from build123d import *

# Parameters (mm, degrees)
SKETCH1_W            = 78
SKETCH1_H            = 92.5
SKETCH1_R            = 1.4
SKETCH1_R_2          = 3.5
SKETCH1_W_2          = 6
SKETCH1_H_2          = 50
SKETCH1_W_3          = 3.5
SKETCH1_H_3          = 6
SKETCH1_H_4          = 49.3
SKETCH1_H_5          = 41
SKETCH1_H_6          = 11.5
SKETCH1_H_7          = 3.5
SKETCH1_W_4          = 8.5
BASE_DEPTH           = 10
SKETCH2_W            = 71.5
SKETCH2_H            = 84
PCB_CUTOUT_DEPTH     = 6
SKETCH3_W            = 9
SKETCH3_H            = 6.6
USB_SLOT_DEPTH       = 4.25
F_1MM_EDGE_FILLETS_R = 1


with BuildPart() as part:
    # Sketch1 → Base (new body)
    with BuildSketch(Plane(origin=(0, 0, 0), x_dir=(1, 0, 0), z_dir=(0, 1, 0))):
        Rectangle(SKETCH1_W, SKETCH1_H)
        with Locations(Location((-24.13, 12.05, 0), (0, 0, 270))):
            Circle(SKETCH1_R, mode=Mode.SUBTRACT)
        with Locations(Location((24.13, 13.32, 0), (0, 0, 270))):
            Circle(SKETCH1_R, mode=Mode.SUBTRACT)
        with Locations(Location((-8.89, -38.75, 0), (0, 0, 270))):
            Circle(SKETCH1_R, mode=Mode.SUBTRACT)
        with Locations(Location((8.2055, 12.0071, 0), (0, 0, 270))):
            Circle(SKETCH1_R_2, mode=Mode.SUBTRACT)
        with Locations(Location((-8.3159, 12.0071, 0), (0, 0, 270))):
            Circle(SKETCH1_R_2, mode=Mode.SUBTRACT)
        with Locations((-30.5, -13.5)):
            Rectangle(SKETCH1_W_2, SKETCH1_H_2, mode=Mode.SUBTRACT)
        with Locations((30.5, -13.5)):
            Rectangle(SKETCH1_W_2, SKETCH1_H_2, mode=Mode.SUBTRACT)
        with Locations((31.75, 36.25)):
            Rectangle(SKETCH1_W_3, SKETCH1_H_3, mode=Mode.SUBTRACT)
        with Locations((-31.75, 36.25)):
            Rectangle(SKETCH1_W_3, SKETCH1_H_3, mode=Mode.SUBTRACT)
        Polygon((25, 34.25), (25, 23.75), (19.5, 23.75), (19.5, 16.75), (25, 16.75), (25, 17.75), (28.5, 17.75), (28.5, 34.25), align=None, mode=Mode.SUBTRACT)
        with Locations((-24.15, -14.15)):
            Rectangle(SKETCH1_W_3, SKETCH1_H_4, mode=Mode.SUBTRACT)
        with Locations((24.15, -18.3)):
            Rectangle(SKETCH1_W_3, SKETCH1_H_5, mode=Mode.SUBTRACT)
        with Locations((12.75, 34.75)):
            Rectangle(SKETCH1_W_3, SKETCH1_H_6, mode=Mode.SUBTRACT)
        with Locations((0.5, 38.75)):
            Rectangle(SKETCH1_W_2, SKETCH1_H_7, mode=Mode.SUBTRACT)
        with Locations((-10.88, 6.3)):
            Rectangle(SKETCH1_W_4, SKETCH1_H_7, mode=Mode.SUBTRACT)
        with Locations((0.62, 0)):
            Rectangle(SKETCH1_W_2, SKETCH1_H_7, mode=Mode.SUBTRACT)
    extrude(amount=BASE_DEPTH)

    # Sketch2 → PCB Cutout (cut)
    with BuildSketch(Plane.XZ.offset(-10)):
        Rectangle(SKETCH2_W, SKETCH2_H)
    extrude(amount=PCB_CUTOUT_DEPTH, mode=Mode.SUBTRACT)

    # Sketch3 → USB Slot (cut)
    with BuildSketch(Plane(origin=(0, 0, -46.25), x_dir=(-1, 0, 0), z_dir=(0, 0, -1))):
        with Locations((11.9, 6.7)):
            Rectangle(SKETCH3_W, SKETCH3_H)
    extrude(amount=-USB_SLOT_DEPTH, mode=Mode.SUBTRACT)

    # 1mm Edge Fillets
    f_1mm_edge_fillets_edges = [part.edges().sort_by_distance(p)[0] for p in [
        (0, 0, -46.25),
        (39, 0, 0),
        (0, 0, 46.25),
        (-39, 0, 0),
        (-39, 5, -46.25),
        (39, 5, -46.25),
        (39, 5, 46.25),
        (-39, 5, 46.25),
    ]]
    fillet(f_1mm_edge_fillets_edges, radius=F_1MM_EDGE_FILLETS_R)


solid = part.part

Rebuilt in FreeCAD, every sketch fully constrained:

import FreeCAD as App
import Part
import Sketcher
Q = App.Units.Quantity


def edges_at(feature, points):
    """Names of the edges that pass closest to the given points."""
    edges = feature.Shape.Edges
    near = lambda p: min(range(len(edges)), key=lambda i: edges[i].distToShape(Part.Vertex(*p))[0])
    return sorted({f"Edge{near(p) + 1}" for p in points})


def add_polygon(sketch, points):
    """Adds a closed chain of lines whose ends are joined by coincident constraints."""
    first, n = sketch.GeometryCount, len(points)
    for a, b in zip(points, points[1:] + points[:1]):
        sketch.addGeometry(Part.LineSegment(App.Vector(*a, 0), App.Vector(*b, 0)), False)
    for i in range(n):
        sketch.addConstraint(Sketcher.Constraint("Coincident", first + i, 2, first + (i + 1) % n, 1))

doc = App.newDocument("Part")
params = doc.addObject("Spreadsheet::Sheet", "Params")
for row, (alias, value) in enumerate([
    ("sketch1_diameter", "7 mm"),
    ("sketch1_diameter2", "2.8 mm"),
    ("sketch1_width", "78 mm"),
    ("sketch1_width2", "6 mm"),
    ("sketch1_height", "50 mm"),
    ("pad1_length", "10 mm"),
    ("sketch2_height", "84 mm"),
    ("sketch2_width", "71.5 mm"),
    ("pocket1_length", "6 mm"),
    ("sketch3_width", "9 mm"),
    ("sketch3_height", "6.6 mm"),
    ("pocket2_length", "4.25 mm"),
    ("fillet_radius", "1 mm"),
], start=1):
    params.set(f"A{row}", alias)
    params.set(f"B{row}", "=" + value)
    params.setAlias(f"B{row}", alias)

body = doc.addObject("PartDesign::Body", "Body")

# Sketch on XZ plane
sketch1 = doc.addObject("Sketcher::SketchObject", "Sketch")
body.addObject(sketch1)
sketch1.AttachmentSupport = (doc.XZ_Plane, [""])
sketch1.MapMode = "FlatFace"
add_polygon(sketch1, [(-39, -46.2), (-39, 46.2), (39, 46.2), (39, -46.2)])  # lines 0-3
sketch1.addGeometry(Part.Circle(App.Vector(-8.9, 38.8, 0), App.Vector(0, 0, 1), 1.4), False)  # 4
add_polygon(sketch1, [(-27.5, 38.5), (-33.5, 38.5), (-33.5, -11.5), (-27.5, -11.5)])  # lines 5-8
add_polygon(sketch1, [(-22.4, 38.8), (-25.9, 38.8), (-25.9, -10.5), (-22.4, -10.5)])  # lines 9-12
add_polygon(sketch1, [(3.6, 1.8), (-2.4, 1.8), (-2.4, -1.8), (3.6, -1.8)])  # lines 13-16
add_polygon(sketch1, [(25.9, 38.8), (22.4, 38.8), (22.4, -2.2), (25.9, -2.2)])  # lines 17-20
add_polygon(sketch1, [(33.5, 38.5), (27.5, 38.5), (27.5, -11.5), (33.5, -11.5)])  # lines 21-24
sketch1.addGeometry(Part.Circle(App.Vector(-24.1, -12.1, 0), App.Vector(0, 0, 1), 1.4), False)  # 25
add_polygon(sketch1, [(-6.6, -4.5), (-15.1, -4.5), (-15.1, -8.1), (-6.6, -8.1)])  # lines 26-29
sketch1.addGeometry(Part.Circle(App.Vector(-8.3, -12, 0), App.Vector(0, 0, 1), 3.5), False)  # 30
add_polygon(sketch1, [(-30, -33.2), (-33.5, -33.2), (-33.5, -39.2), (-30, -39.2)])  # lines 31-34
sketch1.addGeometry(Part.Circle(App.Vector(8.2, -12, 0), App.Vector(0, 0, 1), 3.5), False)  # 35
sketch1.addGeometry(Part.Circle(App.Vector(24.1, -13.3, 0), App.Vector(0, 0, 1), 1.4), False)  # 36
add_polygon(sketch1, [(3.5, -37), (-2.5, -37), (-2.5, -40.5), (3.5, -40.5)])  # lines 37-40
add_polygon(sketch1, [(14.5, -29), (11, -29), (11, -40.5), (14.5, -40.5)])  # lines 41-44
add_polygon(sketch1, [(25, -23.8), (25, -34.2), (28.5, -34.2), (28.5, -17.8), (25, -17.8), (25, -16.8), (19.5, -16.8), (19.5, -23.8)])  # lines 45-52
add_polygon(sketch1, [(33.5, -33.2), (30, -33.2), (30, -39.2), (33.5, -39.2)])  # lines 53-56
sketch1.addConstraint(Sketcher.Constraint("Vertical", 0))
sketch1.addConstraint(Sketcher.Constraint("Horizontal", 1))
sketch1.addConstraint(Sketcher.Constraint("Vertical", 2))
sketch1.addConstraint(Sketcher.Constraint("Horizontal", 3))
sketch1.addConstraint(Sketcher.Constraint("Horizontal", 5))
sketch1.addConstraint(Sketcher.Constraint("Vertical", 6))
sketch1.addConstraint(Sketcher.Constraint("Horizontal", 7))
sketch1.addConstraint(Sketcher.Constraint("Vertical", 8))
sketch1.addConstraint(Sketcher.Constraint("Horizontal", 9))
sketch1.addConstraint(Sketcher.Constraint("Vertical", 10))
sketch1.addConstraint(Sketcher.Constraint("Horizontal", 11))
sketch1.addConstraint(Sketcher.Constraint("Vertical", 12))
sketch1.addConstraint(Sketcher.Constraint("Horizontal", 13))
sketch1.addConstraint(Sketcher.Constraint("Vertical", 14))
sketch1.addConstraint(Sketcher.Constraint("Horizontal", 15))
sketch1.addConstraint(Sketcher.Constraint("Vertical", 16))
sketch1.addConstraint(Sketcher.Constraint("Horizontal", 17))
sketch1.addConstraint(Sketcher.Constraint("Vertical", 18))
sketch1.addConstraint(Sketcher.Constraint("Horizontal", 19))
sketch1.addConstraint(Sketcher.Constraint("Vertical", 20))
sketch1.addConstraint(Sketcher.Constraint("Horizontal", 21))
sketch1.addConstraint(Sketcher.Constraint("Vertical", 22))
sketch1.addConstraint(Sketcher.Constraint("Horizontal", 23))
sketch1.addConstraint(Sketcher.Constraint("Vertical", 24))
sketch1.addConstraint(Sketcher.Constraint("Horizontal", 26))
sketch1.addConstraint(Sketcher.Constraint("Vertical", 27))
sketch1.addConstraint(Sketcher.Constraint("Horizontal", 28))
sketch1.addConstraint(Sketcher.Constraint("Vertical", 29))
sketch1.addConstraint(Sketcher.Constraint("Horizontal", 31))
sketch1.addConstraint(Sketcher.Constraint("Vertical", 32))
sketch1.addConstraint(Sketcher.Constraint("Horizontal", 33))
sketch1.addConstraint(Sketcher.Constraint("Vertical", 34))
sketch1.addConstraint(Sketcher.Constraint("Horizontal", 37))
sketch1.addConstraint(Sketcher.Constraint("Vertical", 38))
sketch1.addConstraint(Sketcher.Constraint("Horizontal", 39))
sketch1.addConstraint(Sketcher.Constraint("Vertical", 40))
sketch1.addConstraint(Sketcher.Constraint("Horizontal", 41))
sketch1.addConstraint(Sketcher.Constraint("Vertical", 42))
sketch1.addConstraint(Sketcher.Constraint("Horizontal", 43))
sketch1.addConstraint(Sketcher.Constraint("Vertical", 44))
sketch1.addConstraint(Sketcher.Constraint("Vertical", 45))
sketch1.addConstraint(Sketcher.Constraint("Horizontal", 46))
sketch1.addConstraint(Sketcher.Constraint("Vertical", 47))
sketch1.addConstraint(Sketcher.Constraint("Horizontal", 48))
sketch1.addConstraint(Sketcher.Constraint("Vertical", 49))
sketch1.addConstraint(Sketcher.Constraint("Horizontal", 50))
sketch1.addConstraint(Sketcher.Constraint("Vertical", 51))
sketch1.addConstraint(Sketcher.Constraint("Horizontal", 52))
sketch1.addConstraint(Sketcher.Constraint("Horizontal", 53))
sketch1.addConstraint(Sketcher.Constraint("Vertical", 54))
sketch1.addConstraint(Sketcher.Constraint("Horizontal", 55))
sketch1.addConstraint(Sketcher.Constraint("Vertical", 56))
sketch1.addConstraint(Sketcher.Constraint("Equal", 4, 25))
sketch1.addConstraint(Sketcher.Constraint("Equal", 30, 35))
sketch1.addConstraint(Sketcher.Constraint("Equal", 25, 36))
sketch1.addConstraint(Sketcher.Constraint("Symmetric", 0, 2, 2, 2, -1, 1))
sketch1.addConstraint(Sketcher.Constraint("Symmetric", 12, 2, 17, 2, -2))
sketch1.addConstraint(Sketcher.Constraint("Symmetric", 8, 2, 21, 2, -2))
sketch1.addConstraint(Sketcher.Constraint("Symmetric", 6, 2, 23, 2, -2))
sketch1.addConstraint(Sketcher.Constraint("Symmetric", 34, 2, 53, 2, -2))
sketch1.addConstraint(Sketcher.Constraint("Symmetric", 32, 2, 55, 2, -2))
sketch1.addConstraint(Sketcher.Constraint("Horizontal", 30, 3, 35, 3))
sketch1.addConstraint(Sketcher.Constraint("Horizontal", 39, 2, 42, 2))
sketch1.addConstraint(Sketcher.Constraint("Vertical", 6, 2, 31, 2))
sketch1.addConstraint(Sketcher.Constraint("Vertical", 45, 2, 48, 2))
sketch1.addConstraint(Sketcher.Constraint("Equal", 7, 13))
sketch1.addConstraint(Sketcher.Constraint("Equal", 11, 17))
sketch1.addConstraint(Sketcher.Constraint("Equal", 19, 31))
sketch1.addConstraint(Sketcher.Constraint("Equal", 23, 37))
sketch1.addConstraint(Sketcher.Constraint("Equal", 33, 41))
sketch1.addConstraint(Sketcher.Constraint("Equal", 43, 46))
sketch1.addConstraint(Sketcher.Constraint("Equal", 55, 14))
sketch1.addConstraint(Sketcher.Constraint("Equal", 16, 27))
sketch1.addConstraint(Sketcher.Constraint("Equal", 39, 32))
sketch1.addConstraint(Sketcher.Constraint("Equal", 29, 38))
sketch1.addConstraint(Sketcher.Constraint("Diameter", 30, Q("7 mm")))
sketch1.addConstraint(Sketcher.Constraint("Diameter", 4, Q("2.8 mm")))
sketch1.addConstraint(Sketcher.Constraint("DistanceX", 1, 1, 1, 2, Q("78 mm")))
sketch1.addConstraint(Sketcher.Constraint("DistanceX", 5, 2, 5, 1, Q("6 mm")))
sketch1.addConstraint(Sketcher.Constraint("DistanceY", 6, 2, 6, 1, Q("50 mm")))
sketch1.addConstraint(Sketcher.Constraint("DistanceY", 18, 2, 18, 1, Q("41 mm")))
sketch1.addConstraint(Sketcher.Constraint("DistanceY", 49, 1, 49, 2, Q("1 mm")))
sketch1.addConstraint(Sketcher.Constraint("DistanceY", 51, 2, 51, 1, Q("7 mm")))
sketch1.addConstraint(Sketcher.Constraint("DistanceX", 9, 2, 9, 1, Q("3.5 mm")))
sketch1.addConstraint(Sketcher.Constraint("DistanceX", 26, 2, 26, 1, Q("8.5 mm")))
sketch1.addConstraint(Sketcher.Constraint("DistanceX", 50, 2, 50, 1, Q("5.5 mm")))
sketch1.addConstraint(Sketcher.Constraint("DistanceY", 0, 1, 0, 2, Q("92.5 mm")))
sketch1.addConstraint(Sketcher.Constraint("DistanceY", 10, 2, 10, 1, Q("49.3 mm")))
sketch1.addConstraint(Sketcher.Constraint("DistanceY", 42, 2, 42, 1, Q("11.5 mm")))
sketch1.addConstraint(Sketcher.Constraint("DistanceY", 45, 2, 45, 1, Q("10.5 mm")))
sketch1.addConstraint(Sketcher.Constraint("DistanceX", 33, 2, -1, 1, Q("30 mm")))
sketch1.addConstraint(Sketcher.Constraint("DistanceY", 37, 2, -1, 1, Q("37 mm")))
sketch1.addConstraint(Sketcher.Constraint("DistanceX", -1, 1, 41, 2, Q("11 mm")))
sketch1.addConstraint(Sketcher.Constraint("DistanceX", -1, 1, 45, 2, Q("25 mm")))
sketch1.addConstraint(Sketcher.Constraint("DistanceY", 7, 2, 10, 2, Q("1 mm")))
sketch1.addConstraint(Sketcher.Constraint("DistanceX", 25, 3, 26, 2, Q("9 mm")))
sketch1.addConstraint(Sketcher.Constraint("DistanceY", 25, 3, 27, 2, Q("4 mm")))
sketch1.addConstraint(Sketcher.Constraint("DistanceY", 3, 2, 31, 2, Q("13 mm")))
sketch1.addConstraint(Sketcher.Constraint("DistanceX", 39, 2, 43, 2, Q("11 mm")))
sketch1.addConstraint(Sketcher.Constraint("DistanceY", 2, 2, 45, 2, Q("12 mm")))
sketch1.addConstraint(Sketcher.Constraint("DistanceY", -1, 1, 5, 2, Q("38.5 mm")))
sketch1.addConstraint(Sketcher.Constraint("DistanceX", 9, 2, -1, 1, Q("25.9 mm")))
sketch1.addConstraint(Sketcher.Constraint("DistanceY", 25, 3, 4, 3, Q("50.8 mm")))
sketch1.addConstraint(Sketcher.Constraint("DistanceY", 4, 3, 0, 2, Q("7.5 mm")))
sketch1.addConstraint(Sketcher.Constraint("DistanceY", 25, 3, 13, 2, Q("13.8 mm")))
sketch1.addConstraint(Sketcher.Constraint("DistanceX", 4, 3, -1, 1, Q("8.89 mm")))
sketch1.addConstraint(Sketcher.Constraint("DistanceX", 25, 3, -1, 1, Q("24.13 mm")))
sketch1.addConstraint(Sketcher.Constraint("DistanceX", -1, 1, 36, 3, Q("24.13 mm")))
sketch1.addConstraint(Sketcher.Constraint("DistanceY", 36, 3, -1, 1, Q("13.32 mm")))
sketch1.addConstraint(Sketcher.Constraint("DistanceX", 13, 2, -1, 1, Q("2.38 mm")))
sketch1.addConstraint(Sketcher.Constraint("DistanceX", 30, 3, -1, 1, Q("8.3159 mm")))
sketch1.addConstraint(Sketcher.Constraint("DistanceY", 30, 3, -1, 1, Q("12.0071 mm")))
sketch1.addConstraint(Sketcher.Constraint("DistanceX", -1, 1, 35, 3, Q("8.2055 mm")))
sketch1.setExpression("Constraints[127]", "Params.sketch1_diameter")
sketch1.setExpression("Constraints[128]", "Params.sketch1_diameter2")
sketch1.setExpression("Constraints[129]", "Params.sketch1_width")
sketch1.setExpression("Constraints[130]", "Params.sketch1_width2")
sketch1.setExpression("Constraints[131]", "Params.sketch1_height")
pad1 = doc.addObject("PartDesign::Pad", "Pad")
body.addObject(pad1)
pad1.Profile = sketch1
pad1.setExpression("Length", "Params.pad1_length")
pad1.Reversed = True

# Sketch on XZ plane
sketch2 = doc.addObject("Sketcher::SketchObject", "Sketch001")
body.addObject(sketch2)
sketch2.AttachmentSupport = (doc.XZ_Plane, [""])
sketch2.MapMode = "FlatFace"
sketch2.AttachmentOffset = App.Placement(App.Vector(0, 0, -10), App.Rotation())
add_polygon(sketch2, [(-36, 42), (-36, -42), (36, -42), (36, 42)])  # lines 0-3
sketch2.addConstraint(Sketcher.Constraint("Vertical", 0))
sketch2.addConstraint(Sketcher.Constraint("Horizontal", 1))
sketch2.addConstraint(Sketcher.Constraint("Vertical", 2))
sketch2.addConstraint(Sketcher.Constraint("Horizontal", 3))
sketch2.addConstraint(Sketcher.Constraint("Symmetric", 0, 2, 2, 2, -1, 1))
sketch2.addConstraint(Sketcher.Constraint("DistanceY", 0, 2, 0, 1, Q("84 mm")))
sketch2.addConstraint(Sketcher.Constraint("DistanceX", 1, 1, 1, 2, Q("71.5 mm")))
sketch2.setExpression("Constraints[9]", "Params.sketch2_height")
sketch2.setExpression("Constraints[10]", "Params.sketch2_width")
pocket1 = doc.addObject("PartDesign::Pocket", "Pocket")
body.addObject(pocket1)
pocket1.Profile = sketch2
pocket1.setExpression("Length", "Params.pocket1_length")
pocket1.Reversed = True

# Sketch on XY plane
sketch3 = doc.addObject("Sketcher::SketchObject", "Sketch002")
body.addObject(sketch3)
sketch3.AttachmentSupport = (doc.XY_Plane, [""])
sketch3.MapMode = "FlatFace"
sketch3.AttachmentOffset = App.Placement(App.Vector(0, 0, -46.25), App.Rotation())
add_polygon(sketch3, [(-7, 10), (-7, 3), (-16, 3), (-16, 10)])  # lines 0-3
sketch3.addConstraint(Sketcher.Constraint("Vertical", 0))
sketch3.addConstraint(Sketcher.Constraint("Horizontal", 1))
sketch3.addConstraint(Sketcher.Constraint("Vertical", 2))
sketch3.addConstraint(Sketcher.Constraint("Horizontal", 3))
sketch3.addConstraint(Sketcher.Constraint("DistanceX", 1, 2, 1, 1, Q("9 mm")))
sketch3.addConstraint(Sketcher.Constraint("DistanceY", 0, 2, 0, 1, Q("6.6 mm")))
sketch3.addConstraint(Sketcher.Constraint("DistanceY", -1, 1, 2, 2, Q("10 mm")))
sketch3.addConstraint(Sketcher.Constraint("DistanceX", 0, 2, -1, 1, Q("7.4 mm")))
sketch3.setExpression("Constraints[8]", "Params.sketch3_width")
sketch3.setExpression("Constraints[9]", "Params.sketch3_height")
pocket2 = doc.addObject("PartDesign::Pocket", "Pocket001")
body.addObject(pocket2)
pocket2.Profile = sketch3
pocket2.setExpression("Length", "Params.pocket2_length")
pocket2.Reversed = True
doc.recompute()

fillet = doc.addObject("PartDesign::Fillet", "Fillet")
body.addObject(fillet)
fillet.Base = (pocket2, edges_at(pocket2, [
    (0, 0, -46.25),
    (39, 0, 0),
    (0, 0, 46.25),
    (-39, 0, 0),
    (-39, 5, -46.25),
    (39, 5, -46.25),
    (39, 5, 46.25),
    (-39, 5, 46.25),
]))
fillet.setExpression("Radius", "Params.fillet_radius")

doc.recompute()
